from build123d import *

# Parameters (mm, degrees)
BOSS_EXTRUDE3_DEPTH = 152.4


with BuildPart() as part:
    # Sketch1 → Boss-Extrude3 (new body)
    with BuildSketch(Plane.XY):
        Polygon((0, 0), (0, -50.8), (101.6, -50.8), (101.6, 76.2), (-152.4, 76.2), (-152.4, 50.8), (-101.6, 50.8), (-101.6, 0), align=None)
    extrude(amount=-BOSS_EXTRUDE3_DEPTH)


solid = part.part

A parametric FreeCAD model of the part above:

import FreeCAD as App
import Part
import Sketcher
from FreeCAD import Vector
Q = App.Units.Quantity


def add_polygon(sketch, points):
    """Adds a closed chain of lines whose ends are joined by coincident constraints."""
    first, n = sketch.GeometryCount, len(points)
    for a, b in zip(points, points[1:] + points[:1]):
        sketch.addGeometry(Part.LineSegment(App.Vector(*a, 0), App.Vector(*b, 0)), False)
    for i in range(n):
        sketch.addConstraint(Sketcher.Constraint("Coincident", first + i, 2, first + (i + 1) % n, 1))

doc = App.newDocument("Part")
body = doc.addObject("PartDesign::Body", "Body")

sketch1 = body.newObject("Sketcher::SketchObject", "Sketch")
sketch1.AttachmentSupport = (doc.getObject("XY_Plane"), [""])
sketch1.MapMode = "FlatFace"
add_polygon(sketch1, [(0, 0), (0, -50.8), (101.6, -50.8), (101.6, 76.2), (-152.4, 76.2), (-152.4, 50.8), (-101.6, 50.8), (-101.6, 0)])
sketch1.addConstraint([
    Sketcher.Constraint("Vertical", 0),
    Sketcher.Constraint("Horizontal", 1),
    Sketcher.Constraint("Vertical", 2),
    Sketcher.Constraint("Horizontal", 3),
    Sketcher.Constraint("Vertical", 4),
    Sketcher.Constraint("Horizontal", 5),
    Sketcher.Constraint("Vertical", 6),
    Sketcher.Constraint("Horizontal", 7),
    Sketcher.Constraint("Coincident", 7, 2, -1, 1),
    Sketcher.Constraint("Symmetric", 1, 2, 5, 2, -1, 1),
    Sketcher.Constraint("Equal", 5, 0),
    Sketcher.Constraint("DistanceX", 1, 1, 1, 2, Q("4 in")),
    Sketcher.Constraint("DistanceX", 3, 2, 3, 1, Q("10 in")),
    Sketcher.Constraint("DistanceY", 2, 1, 2, 2, Q("5 in")),
])
pad1 = body.newObject("PartDesign::Pad", "Pad")
pad1.Profile = sketch1
pad1.Length = Q("6 in")
pad1.Reversed = True

doc.recompute()
